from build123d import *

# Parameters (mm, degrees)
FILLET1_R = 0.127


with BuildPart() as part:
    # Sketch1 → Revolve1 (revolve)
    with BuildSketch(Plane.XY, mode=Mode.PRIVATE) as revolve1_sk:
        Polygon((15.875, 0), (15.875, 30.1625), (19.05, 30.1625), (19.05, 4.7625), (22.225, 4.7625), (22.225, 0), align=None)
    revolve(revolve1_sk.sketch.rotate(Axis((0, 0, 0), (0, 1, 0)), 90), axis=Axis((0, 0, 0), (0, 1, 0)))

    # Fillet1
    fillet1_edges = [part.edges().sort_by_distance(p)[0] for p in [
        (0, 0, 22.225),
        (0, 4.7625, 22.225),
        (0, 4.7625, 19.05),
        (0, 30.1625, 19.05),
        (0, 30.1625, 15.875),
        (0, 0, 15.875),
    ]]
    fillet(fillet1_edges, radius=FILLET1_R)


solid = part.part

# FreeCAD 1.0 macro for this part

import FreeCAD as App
import Part
import Sketcher
from FreeCAD import Vector
Q = App.Units.Quantity


def edges_at(feature, points):
    """Names of the edges that pass closest to the given points."""
    edges = feature.Shape.Edges
    near = lambda p: min(range(len(edges)), key=lambda i: edges[i].distToShape(Part.Vertex(*p))[0])
    return sorted({f"Edge{near(p) + 1}" for p in points})


def add_polygon(sketch, points):
    """Adds a closed chain of lines whose ends are joined by coincident constraints."""
    first, n = sketch.GeometryCount, len(points)
    for a, b in zip(points, points[1:] + points[:1]):
        sketch.addGeometry(Part.LineSegment(App.Vector(*a, 0), App.Vector(*b, 0)), False)
    for i in range(n):
        sketch.addConstraint(Sketcher.Constraint("Coincident", first + i, 2, first + (i + 1) % n, 1))

doc = App.newDocument("Part")
body = doc.addObject("PartDesign::Body", "Body")

# Sketch on XY plane
sketch1 = body.newObject("Sketcher::SketchObject", "Sketch")
sketch1.AttachmentSupport = (doc.getObject("XY_Plane"), [""])
sketch1.MapMode = "FlatFace"
add_polygon(sketch1, [(15.9, 30.2), (15.9, 0), (22.2, 0), (22.2, 4.8), (19.1, 4.8), (19.1, 30.2)])  # lines 0-5
sketch1.addConstraint([
    Sketcher.Constraint("Vertical", 0),
    Sketcher.Constraint("Horizontal", 1),
    Sketcher.Constraint("Vertical", 2),
    Sketcher.Constraint("Horizontal", 3),
    Sketcher.Constraint("Vertical", 4),
    Sketcher.Constraint("Horizontal", 5),
    Sketcher.Constraint("PointOnObject", 0, 2, -1),
    Sketcher.Constraint("Equal", 3, 5),
    Sketcher.Constraint("DistanceY", 4, 1, 4, 2, Q("1 in")),
    Sketcher.Constraint("DistanceX", 1, 1, 1, 2, Q("0.25 in")),
    Sketcher.Constraint("DistanceY", 0, 2, 0, 1, Q("1.1875 in")),
    Sketcher.Constraint("DistanceX", -1, 1, 3, 2, Q("0.75 in")),
])
revolution = body.newObject("PartDesign::Revolution", "Revolution")
revolution.Profile = sketch1
revolution.ReferenceAxis = (sketch1, ["V_Axis"])
revolution.Angle = 360
doc.recompute()

fillet = body.newObject("PartDesign::Fillet", "Fillet")
fillet.Base = (revolution, edges_at(revolution, [
    (0, 0, 22.225),
    (0, 4.763, 22.225),
    (0, 4.763, 19.05),
    (0, 30.163, 19.05),
    (0, 30.163, 15.875),
    (0, 0, 15.875),
]))
fillet.Radius = Q("0.005 in")

doc.recompute()
